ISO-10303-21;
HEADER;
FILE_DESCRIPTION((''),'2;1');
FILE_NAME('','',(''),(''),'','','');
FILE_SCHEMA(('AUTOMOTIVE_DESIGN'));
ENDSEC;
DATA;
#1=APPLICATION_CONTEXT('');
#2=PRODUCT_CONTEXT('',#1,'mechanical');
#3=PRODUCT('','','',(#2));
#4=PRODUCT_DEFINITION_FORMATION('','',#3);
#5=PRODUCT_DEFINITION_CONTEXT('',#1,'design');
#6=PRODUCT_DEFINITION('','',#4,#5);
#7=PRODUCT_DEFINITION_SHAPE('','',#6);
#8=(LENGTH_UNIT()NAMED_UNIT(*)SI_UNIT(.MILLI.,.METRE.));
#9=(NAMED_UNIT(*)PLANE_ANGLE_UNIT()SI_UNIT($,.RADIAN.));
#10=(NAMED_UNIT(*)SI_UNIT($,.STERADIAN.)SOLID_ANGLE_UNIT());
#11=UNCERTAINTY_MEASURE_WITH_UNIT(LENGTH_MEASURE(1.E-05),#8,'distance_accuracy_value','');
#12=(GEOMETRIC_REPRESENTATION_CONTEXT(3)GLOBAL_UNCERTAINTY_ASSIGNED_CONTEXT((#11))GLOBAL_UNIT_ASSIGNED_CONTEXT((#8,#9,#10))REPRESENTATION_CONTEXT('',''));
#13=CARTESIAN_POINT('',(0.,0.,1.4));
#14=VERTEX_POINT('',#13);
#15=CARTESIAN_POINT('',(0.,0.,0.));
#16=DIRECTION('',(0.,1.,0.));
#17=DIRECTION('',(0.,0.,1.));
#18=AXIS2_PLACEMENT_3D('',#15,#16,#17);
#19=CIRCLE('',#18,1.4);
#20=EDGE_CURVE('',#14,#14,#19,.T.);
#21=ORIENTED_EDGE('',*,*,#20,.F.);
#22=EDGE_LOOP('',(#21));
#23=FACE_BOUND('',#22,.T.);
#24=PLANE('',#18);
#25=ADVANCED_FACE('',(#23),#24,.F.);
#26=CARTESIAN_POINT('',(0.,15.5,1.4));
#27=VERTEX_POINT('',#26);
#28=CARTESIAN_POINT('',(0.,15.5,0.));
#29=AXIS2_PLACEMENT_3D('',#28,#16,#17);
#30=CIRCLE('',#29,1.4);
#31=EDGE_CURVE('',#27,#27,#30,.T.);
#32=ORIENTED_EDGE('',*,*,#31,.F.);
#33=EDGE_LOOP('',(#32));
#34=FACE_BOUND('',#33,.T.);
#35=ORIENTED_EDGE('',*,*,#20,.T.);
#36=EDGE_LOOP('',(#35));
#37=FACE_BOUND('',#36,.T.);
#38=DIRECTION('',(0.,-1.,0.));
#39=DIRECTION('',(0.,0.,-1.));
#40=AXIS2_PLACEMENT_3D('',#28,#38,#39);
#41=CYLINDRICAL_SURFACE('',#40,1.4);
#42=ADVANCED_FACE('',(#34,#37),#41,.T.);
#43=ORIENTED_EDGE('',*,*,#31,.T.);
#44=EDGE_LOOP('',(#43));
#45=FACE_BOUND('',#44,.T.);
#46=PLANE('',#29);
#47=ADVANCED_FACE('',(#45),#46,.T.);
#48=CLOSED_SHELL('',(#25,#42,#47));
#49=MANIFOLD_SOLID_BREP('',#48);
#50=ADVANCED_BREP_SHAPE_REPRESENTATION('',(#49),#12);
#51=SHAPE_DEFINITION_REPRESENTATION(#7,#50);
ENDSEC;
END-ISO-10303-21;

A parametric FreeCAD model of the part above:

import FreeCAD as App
import Part
import Sketcher

V = App.Vector
Q = App.Units.Quantity

doc = App.newDocument("Part")
body = doc.addObject("PartDesign::Body", "Body")

sketch1 = doc.addObject("Sketcher::SketchObject", "Sketch")
body.addObject(sketch1)
sketch1.AttachmentSupport = (doc.XZ_Plane, [""])
sketch1.MapMode = "FlatFace"
sketch1.addGeometry(Part.Circle(V(0, 0, 0), V(0, 0, 1), 1.4), False)
sketch1.addConstraint([
    Sketcher.Constraint("Coincident", 0, 3, -1, 1),
    Sketcher.Constraint("Diameter", 0, Q("2.8 mm")),
])
pad1 = doc.addObject("PartDesign::Pad", "Pad")
body.addObject(pad1)
pad1.Profile = sketch1
pad1.Length = 15.5
pad1.Reversed = True

doc.recompute()
